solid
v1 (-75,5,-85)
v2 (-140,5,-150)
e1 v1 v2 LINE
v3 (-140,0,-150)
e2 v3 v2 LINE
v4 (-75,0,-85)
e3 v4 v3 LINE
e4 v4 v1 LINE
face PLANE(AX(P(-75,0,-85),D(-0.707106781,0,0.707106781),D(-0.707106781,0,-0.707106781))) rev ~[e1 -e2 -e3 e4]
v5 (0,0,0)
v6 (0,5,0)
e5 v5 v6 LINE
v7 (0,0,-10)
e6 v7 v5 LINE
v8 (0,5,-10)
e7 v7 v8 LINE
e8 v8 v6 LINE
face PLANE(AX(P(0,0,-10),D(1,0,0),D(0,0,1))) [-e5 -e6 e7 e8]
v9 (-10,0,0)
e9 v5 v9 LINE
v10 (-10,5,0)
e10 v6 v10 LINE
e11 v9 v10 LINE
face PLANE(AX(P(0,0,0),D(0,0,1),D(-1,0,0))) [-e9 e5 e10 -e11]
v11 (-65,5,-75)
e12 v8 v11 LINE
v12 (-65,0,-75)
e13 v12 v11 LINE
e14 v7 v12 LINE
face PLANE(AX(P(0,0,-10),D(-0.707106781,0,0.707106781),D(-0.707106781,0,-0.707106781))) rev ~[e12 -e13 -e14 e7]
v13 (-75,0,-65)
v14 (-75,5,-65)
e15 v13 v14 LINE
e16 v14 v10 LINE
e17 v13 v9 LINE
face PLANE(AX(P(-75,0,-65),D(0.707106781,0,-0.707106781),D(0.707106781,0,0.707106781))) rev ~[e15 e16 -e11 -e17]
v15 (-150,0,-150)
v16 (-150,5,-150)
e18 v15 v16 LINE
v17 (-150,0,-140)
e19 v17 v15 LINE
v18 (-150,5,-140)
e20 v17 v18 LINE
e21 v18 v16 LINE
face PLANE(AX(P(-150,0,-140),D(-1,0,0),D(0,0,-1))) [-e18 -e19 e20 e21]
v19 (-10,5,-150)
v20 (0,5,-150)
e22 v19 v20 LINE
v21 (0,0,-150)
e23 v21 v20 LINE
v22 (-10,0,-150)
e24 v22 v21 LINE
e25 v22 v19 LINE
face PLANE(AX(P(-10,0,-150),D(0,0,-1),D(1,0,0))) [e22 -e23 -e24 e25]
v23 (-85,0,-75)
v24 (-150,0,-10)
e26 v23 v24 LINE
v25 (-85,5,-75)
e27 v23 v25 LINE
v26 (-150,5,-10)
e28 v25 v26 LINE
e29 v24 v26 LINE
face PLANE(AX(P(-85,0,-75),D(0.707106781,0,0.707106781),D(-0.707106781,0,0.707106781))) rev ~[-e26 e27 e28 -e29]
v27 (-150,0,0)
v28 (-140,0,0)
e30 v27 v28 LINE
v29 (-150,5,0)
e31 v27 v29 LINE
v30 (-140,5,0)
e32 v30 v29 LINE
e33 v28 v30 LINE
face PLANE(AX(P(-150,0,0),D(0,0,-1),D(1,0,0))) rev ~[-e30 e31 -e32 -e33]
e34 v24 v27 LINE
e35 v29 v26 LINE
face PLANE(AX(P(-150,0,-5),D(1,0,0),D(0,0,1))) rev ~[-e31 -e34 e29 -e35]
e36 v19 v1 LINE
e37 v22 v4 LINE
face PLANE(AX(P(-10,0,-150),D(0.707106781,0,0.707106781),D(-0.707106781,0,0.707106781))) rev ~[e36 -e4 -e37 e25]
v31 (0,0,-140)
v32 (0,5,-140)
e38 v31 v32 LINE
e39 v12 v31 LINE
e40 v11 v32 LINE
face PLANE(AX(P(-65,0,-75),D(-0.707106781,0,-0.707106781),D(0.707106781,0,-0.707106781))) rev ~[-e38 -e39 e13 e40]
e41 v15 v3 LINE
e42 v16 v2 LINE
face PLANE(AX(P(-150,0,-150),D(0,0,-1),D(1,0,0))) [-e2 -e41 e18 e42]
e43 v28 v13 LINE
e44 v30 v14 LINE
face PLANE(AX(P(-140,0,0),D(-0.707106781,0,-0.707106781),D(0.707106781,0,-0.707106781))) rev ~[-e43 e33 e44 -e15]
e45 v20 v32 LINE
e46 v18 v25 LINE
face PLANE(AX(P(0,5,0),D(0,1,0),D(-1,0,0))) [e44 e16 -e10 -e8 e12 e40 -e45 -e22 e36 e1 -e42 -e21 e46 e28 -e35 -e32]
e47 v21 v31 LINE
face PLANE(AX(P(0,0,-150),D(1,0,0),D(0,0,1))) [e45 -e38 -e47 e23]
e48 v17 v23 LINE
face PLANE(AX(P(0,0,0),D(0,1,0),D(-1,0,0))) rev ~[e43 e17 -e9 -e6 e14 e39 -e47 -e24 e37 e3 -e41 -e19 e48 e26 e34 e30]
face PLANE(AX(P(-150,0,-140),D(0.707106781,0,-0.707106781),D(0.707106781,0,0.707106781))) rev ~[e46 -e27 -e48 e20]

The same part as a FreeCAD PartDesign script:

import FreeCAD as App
import Part
import Sketcher

V = App.Vector
Q = App.Units.Quantity

doc = App.newDocument("Part")
body = doc.addObject("PartDesign::Body", "Body")

sketch1 = body.newObject("Sketcher::SketchObject", "Sketch")
sketch1.AttachmentSupport = (doc.getObject("XZ_Plane"), [""])
sketch1.MapMode = "FlatFace"
sketch1.addGeometry(Part.LineSegment(V(-150, 0, 0), V(-140, 0, 0)), False)
sketch1.addGeometry(Part.LineSegment(V(-140, 0, 0), V(-75, -65, 0)), False)
sketch1.addGeometry(Part.LineSegment(V(-75, -65, 0), V(-10, 0, 0)), False)
sketch1.addGeometry(Part.LineSegment(V(-10, 0, 0), V(0, 0, 0)), False)
sketch1.addGeometry(Part.LineSegment(V(0, 0, 0), V(0, -10, 0)), False)
sketch1.addGeometry(Part.LineSegment(V(0, -10, 0), V(-65, -75, 0)), False)
sketch1.addGeometry(Part.LineSegment(V(-65, -75, 0), V(0, -140, 0)), False)
sketch1.addGeometry(Part.LineSegment(V(0, -140, 0), V(0, -150, 0)), False)
sketch1.addGeometry(Part.LineSegment(V(0, -150, 0), V(-10, -150, 0)), False)
sketch1.addGeometry(Part.LineSegment(V(-10, -150, 0), V(-75, -85, 0)), False)
sketch1.addGeometry(Part.LineSegment(V(-75, -85, 0), V(-140, -150, 0)), False)
sketch1.addGeometry(Part.LineSegment(V(-140, -150, 0), V(-150, -150, 0)), False)
sketch1.addGeometry(Part.LineSegment(V(-150, -150, 0), V(-150, -140, 0)), False)
sketch1.addGeometry(Part.LineSegment(V(-150, -140, 0), V(-85, -75, 0)), False)
sketch1.addGeometry(Part.LineSegment(V(-85, -75, 0), V(-150, -10, 0)), False)
sketch1.addGeometry(Part.LineSegment(V(-150, -10, 0), V(-150, 0, 0)), False)
sketch1.addConstraint(Sketcher.Constraint("Coincident", 0, 2, 1, 1))
sketch1.addConstraint(Sketcher.Constraint("Coincident", 1, 2, 2, 1))
sketch1.addConstraint(Sketcher.Constraint("Coincident", 2, 2, 3, 1))
sketch1.addConstraint(Sketcher.Constraint("Coincident", 3, 2, 4, 1))
sketch1.addConstraint(Sketcher.Constraint("Coincident", 4, 2, 5, 1))
sketch1.addConstraint(Sketcher.Constraint("Coincident", 5, 2, 6, 1))
sketch1.addConstraint(Sketcher.Constraint("Coincident", 6, 2, 7, 1))
sketch1.addConstraint(Sketcher.Constraint("Coincident", 7, 2, 8, 1))
sketch1.addConstraint(Sketcher.Constraint("Coincident", 8, 2, 9, 1))
sketch1.addConstraint(Sketcher.Constraint("Coincident", 9, 2, 10, 1))
sketch1.addConstraint(Sketcher.Constraint("Coincident", 10, 2, 11, 1))
sketch1.addConstraint(Sketcher.Constraint("Coincident", 11, 2, 12, 1))
sketch1.addConstraint(Sketcher.Constraint("Coincident", 12, 2, 13, 1))
sketch1.addConstraint(Sketcher.Constraint("Coincident", 13, 2, 14, 1))
sketch1.addConstraint(Sketcher.Constraint("Coincident", 14, 2, 15, 1))
sketch1.addConstraint(Sketcher.Constraint("Coincident", 15, 2, 0, 1))
sketch1.addConstraint(Sketcher.Constraint("Horizontal", 0))
sketch1.addConstraint(Sketcher.Constraint("Horizontal", 3))
sketch1.addConstraint(Sketcher.Constraint("Vertical", 4))
sketch1.addConstraint(Sketcher.Constraint("Vertical", 7))
sketch1.addConstraint(Sketcher.Constraint("Horizontal", 8))
sketch1.addConstraint(Sketcher.Constraint("Horizontal", 11))
sketch1.addConstraint(Sketcher.Constraint("Vertical", 12))
sketch1.addConstraint(Sketcher.Constraint("Vertical", 15))
sketch1.addConstraint(Sketcher.Constraint("Coincident", 3, 2, -1, 1))
sketch1.addConstraint(Sketcher.Constraint("PointOnObject", 0, 2, -1))
sketch1.addConstraint(Sketcher.Constraint("PointOnObject", 6, 2, -2))
sketch1.addConstraint(Sketcher.Constraint("Perpendicular", 1, 2))
sketch1.addConstraint(Sketcher.Constraint("Parallel", 2, 5))
sketch1.addConstraint(Sketcher.Constraint("Perpendicular", 5, 6))
sketch1.addConstraint(Sketcher.Constraint("Parallel", 6, 9))
sketch1.addConstraint(Sketcher.Constraint("Perpendicular", 9, 10))
sketch1.addConstraint(Sketcher.Constraint("Parallel", 10, 13))
sketch1.addConstraint(Sketcher.Constraint("Perpendicular", 13, 14))
sketch1.addConstraint(Sketcher.Constraint("Horizontal", 8, 2, 10, 2))
sketch1.addConstraint(Sketcher.Constraint("Horizontal", 6, 2, 12, 2))
sketch1.addConstraint(Sketcher.Constraint("Horizontal", 5, 2, 13, 2))
sketch1.addConstraint(Sketcher.Constraint("Horizontal", 4, 2, 14, 2))
sketch1.addConstraint(Sketcher.Constraint("Vertical", 2, 2, 8, 2))
sketch1.addConstraint(Sketcher.Constraint("Vertical", 1, 2, 9, 2))
sketch1.addConstraint(Sketcher.Constraint("Vertical", 0, 2, 10, 2))
sketch1.addConstraint(Sketcher.Constraint("Equal", 0, 3))
sketch1.addConstraint(Sketcher.Constraint("Equal", 11, 4))
sketch1.addConstraint(Sketcher.Constraint("Equal", 4, 7))
sketch1.addConstraint(Sketcher.Constraint("Equal", 2, 5))
sketch1.addConstraint(Sketcher.Constraint("DistanceX", 0, 1, 0, 2, Q("10 mm")))
sketch1.addConstraint(Sketcher.Constraint("DistanceY", 7, 2, -1, 1, Q("150 mm")))
pad1 = body.newObject("PartDesign::Pad", "Pad")
pad1.Profile = sketch1
pad1.Length = 5
pad1.Reversed = True

doc.recompute()
